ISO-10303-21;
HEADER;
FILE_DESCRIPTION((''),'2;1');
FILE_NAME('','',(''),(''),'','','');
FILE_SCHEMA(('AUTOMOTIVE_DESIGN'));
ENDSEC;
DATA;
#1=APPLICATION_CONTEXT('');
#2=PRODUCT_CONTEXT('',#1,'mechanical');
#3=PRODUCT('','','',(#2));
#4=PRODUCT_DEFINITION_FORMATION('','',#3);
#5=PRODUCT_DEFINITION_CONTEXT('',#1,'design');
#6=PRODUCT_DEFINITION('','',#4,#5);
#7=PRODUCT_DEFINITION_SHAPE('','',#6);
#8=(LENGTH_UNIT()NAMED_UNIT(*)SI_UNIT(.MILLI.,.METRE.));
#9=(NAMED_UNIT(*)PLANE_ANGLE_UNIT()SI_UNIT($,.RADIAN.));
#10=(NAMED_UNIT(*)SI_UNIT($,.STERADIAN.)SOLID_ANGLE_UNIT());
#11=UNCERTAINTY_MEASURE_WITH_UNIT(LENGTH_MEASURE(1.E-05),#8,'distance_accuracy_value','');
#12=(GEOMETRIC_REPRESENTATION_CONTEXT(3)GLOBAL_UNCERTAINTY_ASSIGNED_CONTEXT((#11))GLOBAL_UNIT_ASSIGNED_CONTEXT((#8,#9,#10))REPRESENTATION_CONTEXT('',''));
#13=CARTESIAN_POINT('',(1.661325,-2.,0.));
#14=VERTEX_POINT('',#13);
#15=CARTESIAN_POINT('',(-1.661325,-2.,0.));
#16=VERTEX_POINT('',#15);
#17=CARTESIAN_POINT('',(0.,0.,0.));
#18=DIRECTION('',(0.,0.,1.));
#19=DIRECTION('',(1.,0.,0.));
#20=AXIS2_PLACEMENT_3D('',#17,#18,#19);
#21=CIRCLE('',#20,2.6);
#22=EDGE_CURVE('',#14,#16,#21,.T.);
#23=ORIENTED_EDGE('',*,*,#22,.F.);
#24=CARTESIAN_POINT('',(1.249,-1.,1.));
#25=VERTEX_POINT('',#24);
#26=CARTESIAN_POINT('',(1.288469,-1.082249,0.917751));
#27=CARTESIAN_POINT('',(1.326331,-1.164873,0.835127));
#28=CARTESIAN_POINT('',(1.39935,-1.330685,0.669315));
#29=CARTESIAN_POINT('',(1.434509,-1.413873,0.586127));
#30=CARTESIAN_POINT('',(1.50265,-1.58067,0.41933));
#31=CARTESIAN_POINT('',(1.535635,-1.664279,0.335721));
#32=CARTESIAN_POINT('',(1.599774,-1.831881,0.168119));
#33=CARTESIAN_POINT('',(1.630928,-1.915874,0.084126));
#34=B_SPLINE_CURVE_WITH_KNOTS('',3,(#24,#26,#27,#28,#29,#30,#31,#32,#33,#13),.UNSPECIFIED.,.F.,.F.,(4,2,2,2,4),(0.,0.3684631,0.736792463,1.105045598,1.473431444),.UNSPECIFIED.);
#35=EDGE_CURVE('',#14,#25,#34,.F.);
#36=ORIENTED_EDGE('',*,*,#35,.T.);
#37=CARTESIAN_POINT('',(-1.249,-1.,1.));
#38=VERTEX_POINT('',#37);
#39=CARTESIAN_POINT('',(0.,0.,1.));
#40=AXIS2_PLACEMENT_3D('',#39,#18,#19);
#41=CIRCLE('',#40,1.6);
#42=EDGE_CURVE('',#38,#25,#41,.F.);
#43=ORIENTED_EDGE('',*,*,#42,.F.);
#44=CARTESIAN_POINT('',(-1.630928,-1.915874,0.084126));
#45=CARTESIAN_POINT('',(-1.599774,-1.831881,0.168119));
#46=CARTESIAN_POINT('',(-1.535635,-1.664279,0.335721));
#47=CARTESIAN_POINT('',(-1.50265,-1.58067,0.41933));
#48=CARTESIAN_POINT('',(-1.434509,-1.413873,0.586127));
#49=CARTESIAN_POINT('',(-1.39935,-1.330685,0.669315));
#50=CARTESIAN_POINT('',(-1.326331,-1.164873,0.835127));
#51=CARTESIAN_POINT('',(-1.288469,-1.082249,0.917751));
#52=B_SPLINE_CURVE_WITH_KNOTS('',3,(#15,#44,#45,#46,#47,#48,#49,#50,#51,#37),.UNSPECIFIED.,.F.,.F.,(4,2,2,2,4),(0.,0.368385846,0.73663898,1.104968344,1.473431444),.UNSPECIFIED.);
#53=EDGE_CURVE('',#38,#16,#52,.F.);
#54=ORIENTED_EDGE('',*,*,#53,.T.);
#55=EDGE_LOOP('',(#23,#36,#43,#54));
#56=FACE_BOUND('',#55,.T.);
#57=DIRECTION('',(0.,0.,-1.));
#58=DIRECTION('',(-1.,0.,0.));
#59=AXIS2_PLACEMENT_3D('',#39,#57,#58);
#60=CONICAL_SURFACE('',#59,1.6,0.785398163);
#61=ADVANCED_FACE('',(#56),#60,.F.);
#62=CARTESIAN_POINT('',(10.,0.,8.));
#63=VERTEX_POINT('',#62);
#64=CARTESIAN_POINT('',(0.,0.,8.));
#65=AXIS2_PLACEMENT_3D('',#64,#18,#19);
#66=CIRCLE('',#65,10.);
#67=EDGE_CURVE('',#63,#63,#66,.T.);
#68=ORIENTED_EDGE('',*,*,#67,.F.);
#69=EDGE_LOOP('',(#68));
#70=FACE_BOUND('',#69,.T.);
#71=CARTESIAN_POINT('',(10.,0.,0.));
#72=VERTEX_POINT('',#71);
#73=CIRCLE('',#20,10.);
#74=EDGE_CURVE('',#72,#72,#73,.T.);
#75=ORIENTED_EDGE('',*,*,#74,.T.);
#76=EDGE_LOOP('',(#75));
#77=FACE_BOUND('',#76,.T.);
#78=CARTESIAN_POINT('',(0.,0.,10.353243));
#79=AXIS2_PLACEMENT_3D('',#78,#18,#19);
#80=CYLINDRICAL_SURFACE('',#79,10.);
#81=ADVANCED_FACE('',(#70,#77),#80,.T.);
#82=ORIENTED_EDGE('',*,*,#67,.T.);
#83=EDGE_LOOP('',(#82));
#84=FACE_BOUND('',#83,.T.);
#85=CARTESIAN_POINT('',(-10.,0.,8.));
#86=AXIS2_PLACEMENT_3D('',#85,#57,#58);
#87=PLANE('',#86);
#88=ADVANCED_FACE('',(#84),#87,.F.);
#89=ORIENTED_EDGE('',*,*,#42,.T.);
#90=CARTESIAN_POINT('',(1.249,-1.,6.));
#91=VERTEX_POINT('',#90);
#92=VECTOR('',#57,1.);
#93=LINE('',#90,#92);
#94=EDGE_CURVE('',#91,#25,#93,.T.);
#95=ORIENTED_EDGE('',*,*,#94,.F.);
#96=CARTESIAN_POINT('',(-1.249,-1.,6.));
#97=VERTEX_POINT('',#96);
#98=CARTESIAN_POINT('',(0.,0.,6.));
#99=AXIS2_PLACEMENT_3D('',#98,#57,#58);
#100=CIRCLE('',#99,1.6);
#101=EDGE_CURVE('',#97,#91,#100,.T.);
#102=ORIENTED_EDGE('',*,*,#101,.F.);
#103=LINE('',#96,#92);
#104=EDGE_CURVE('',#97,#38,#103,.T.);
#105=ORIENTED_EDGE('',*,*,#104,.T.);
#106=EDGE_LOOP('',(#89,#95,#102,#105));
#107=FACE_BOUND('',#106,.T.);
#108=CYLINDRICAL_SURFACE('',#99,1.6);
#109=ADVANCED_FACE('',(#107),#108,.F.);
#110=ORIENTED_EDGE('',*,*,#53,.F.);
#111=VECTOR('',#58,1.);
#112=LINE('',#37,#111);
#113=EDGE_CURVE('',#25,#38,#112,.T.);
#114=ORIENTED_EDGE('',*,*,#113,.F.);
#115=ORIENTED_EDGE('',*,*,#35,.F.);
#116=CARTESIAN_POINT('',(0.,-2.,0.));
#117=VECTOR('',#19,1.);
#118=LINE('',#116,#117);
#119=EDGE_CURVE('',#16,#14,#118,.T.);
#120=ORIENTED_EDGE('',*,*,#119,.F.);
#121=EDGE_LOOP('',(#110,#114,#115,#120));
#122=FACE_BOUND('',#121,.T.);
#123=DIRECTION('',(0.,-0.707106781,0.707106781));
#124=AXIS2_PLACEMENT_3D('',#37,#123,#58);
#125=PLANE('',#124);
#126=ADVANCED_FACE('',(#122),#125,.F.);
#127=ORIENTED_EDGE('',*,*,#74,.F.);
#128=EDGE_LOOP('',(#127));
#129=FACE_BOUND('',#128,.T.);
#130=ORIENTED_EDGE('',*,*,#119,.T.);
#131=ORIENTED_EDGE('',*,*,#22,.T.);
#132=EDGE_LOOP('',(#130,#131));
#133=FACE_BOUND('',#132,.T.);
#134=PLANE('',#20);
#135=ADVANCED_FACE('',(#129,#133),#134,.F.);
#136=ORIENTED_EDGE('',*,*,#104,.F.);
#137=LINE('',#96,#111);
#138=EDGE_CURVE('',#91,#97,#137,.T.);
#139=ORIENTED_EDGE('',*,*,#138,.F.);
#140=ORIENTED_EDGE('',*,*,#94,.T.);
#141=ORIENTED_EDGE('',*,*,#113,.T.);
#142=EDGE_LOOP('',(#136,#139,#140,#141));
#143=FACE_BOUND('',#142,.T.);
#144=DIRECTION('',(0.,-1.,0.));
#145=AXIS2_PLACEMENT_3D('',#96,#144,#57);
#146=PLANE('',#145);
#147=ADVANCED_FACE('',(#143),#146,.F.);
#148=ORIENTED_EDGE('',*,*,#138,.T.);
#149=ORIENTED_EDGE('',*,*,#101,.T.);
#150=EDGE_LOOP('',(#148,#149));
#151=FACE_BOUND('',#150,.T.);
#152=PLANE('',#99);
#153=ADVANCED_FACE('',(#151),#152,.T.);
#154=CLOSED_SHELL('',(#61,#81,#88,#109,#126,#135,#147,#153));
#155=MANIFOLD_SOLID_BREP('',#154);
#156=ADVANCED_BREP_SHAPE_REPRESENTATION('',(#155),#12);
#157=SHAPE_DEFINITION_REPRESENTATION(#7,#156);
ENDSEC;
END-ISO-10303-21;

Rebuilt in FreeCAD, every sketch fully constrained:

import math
import FreeCAD as App
import Part
import Sketcher
Q = App.Units.Quantity


def edges_at(feature, points):
    """Names of the edges that pass closest to the given points."""
    edges = feature.Shape.Edges
    near = lambda p: min(range(len(edges)), key=lambda i: edges[i].distToShape(Part.Vertex(*p))[0])
    return sorted({f"Edge{near(p) + 1}" for p in points})


def add_polygon(sketch, points):
    """Adds a closed chain of lines whose ends are joined by coincident constraints."""
    first, n = sketch.GeometryCount, len(points)
    for a, b in zip(points, points[1:] + points[:1]):
        sketch.addGeometry(Part.LineSegment(App.Vector(*a, 0), App.Vector(*b, 0)), False)
    for i in range(n):
        sketch.addConstraint(Sketcher.Constraint("Coincident", first + i, 2, first + (i + 1) % n, 1))

doc = App.newDocument("Part")
body = doc.addObject("PartDesign::Body", "Body")

sketch1 = body.newObject("Sketcher::SketchObject", "Sketch")
sketch1.AttachmentSupport = (doc.getObject("XZ_Plane"), [""])
sketch1.MapMode = "FlatFace"
add_polygon(sketch1, [(-10, 0), (-10, 8), (0, 8), (0, 0)])
sketch1.addConstraint([
    Sketcher.Constraint("Vertical", 0),
    Sketcher.Constraint("Horizontal", 1),
    Sketcher.Constraint("Vertical", 2),
    Sketcher.Constraint("Horizontal", 3),
    Sketcher.Constraint("Coincident", 2, 2, -1, 1),
    Sketcher.Constraint("DistanceX", 1, 1, 1, 2, Q("10 mm")),
    Sketcher.Constraint("DistanceY", 0, 1, 0, 2, Q("8 mm")),
])
revolution = body.newObject("PartDesign::Revolution", "Revolution")
revolution.Profile = sketch1
revolution.ReferenceAxis = (sketch1, ["V_Axis"])
revolution.Angle = 360

sketch2 = body.newObject("Sketcher::SketchObject", "Sketch001")
sketch2.AttachmentSupport = (doc.getObject("XY_Plane"), [""])
sketch2.MapMode = "FlatFace"
sketch2.addGeometry([
    Part.LineSegment(App.Vector(1.2, -1, 0), App.Vector(-1.2, -1, 0)),
    Part.ArcOfCircle(Part.Circle(App.Vector(0, 0, 0), App.Vector(0, 0, 1), 1.6), math.radians(-39), math.radians(219)),
], False)
sketch2.addConstraint([
    Sketcher.Constraint("Coincident", 0, 1, 1, 1),
    Sketcher.Constraint("Coincident", 1, 2, 0, 2),
    Sketcher.Constraint("Horizontal", 0),
    Sketcher.Constraint("Coincident", 1, 3, -1, 1),
    Sketcher.Constraint("Radius", 1, Q("1.6 mm")),
    Sketcher.Constraint("DistanceY", 0, 1, -1, 1, Q("1 mm")),
])
pocket1 = body.newObject("PartDesign::Pocket", "Pocket")
pocket1.Profile = sketch2
pocket1.Length = 6
pocket1.Reversed = True
doc.recompute()

chamfer = body.newObject("PartDesign::Chamfer", "Chamfer")
chamfer.Base = (pocket1, edges_at(pocket1, [(0, 1.6, 0), (0, -1, 0)]))
chamfer.Size = 1

doc.recompute()
